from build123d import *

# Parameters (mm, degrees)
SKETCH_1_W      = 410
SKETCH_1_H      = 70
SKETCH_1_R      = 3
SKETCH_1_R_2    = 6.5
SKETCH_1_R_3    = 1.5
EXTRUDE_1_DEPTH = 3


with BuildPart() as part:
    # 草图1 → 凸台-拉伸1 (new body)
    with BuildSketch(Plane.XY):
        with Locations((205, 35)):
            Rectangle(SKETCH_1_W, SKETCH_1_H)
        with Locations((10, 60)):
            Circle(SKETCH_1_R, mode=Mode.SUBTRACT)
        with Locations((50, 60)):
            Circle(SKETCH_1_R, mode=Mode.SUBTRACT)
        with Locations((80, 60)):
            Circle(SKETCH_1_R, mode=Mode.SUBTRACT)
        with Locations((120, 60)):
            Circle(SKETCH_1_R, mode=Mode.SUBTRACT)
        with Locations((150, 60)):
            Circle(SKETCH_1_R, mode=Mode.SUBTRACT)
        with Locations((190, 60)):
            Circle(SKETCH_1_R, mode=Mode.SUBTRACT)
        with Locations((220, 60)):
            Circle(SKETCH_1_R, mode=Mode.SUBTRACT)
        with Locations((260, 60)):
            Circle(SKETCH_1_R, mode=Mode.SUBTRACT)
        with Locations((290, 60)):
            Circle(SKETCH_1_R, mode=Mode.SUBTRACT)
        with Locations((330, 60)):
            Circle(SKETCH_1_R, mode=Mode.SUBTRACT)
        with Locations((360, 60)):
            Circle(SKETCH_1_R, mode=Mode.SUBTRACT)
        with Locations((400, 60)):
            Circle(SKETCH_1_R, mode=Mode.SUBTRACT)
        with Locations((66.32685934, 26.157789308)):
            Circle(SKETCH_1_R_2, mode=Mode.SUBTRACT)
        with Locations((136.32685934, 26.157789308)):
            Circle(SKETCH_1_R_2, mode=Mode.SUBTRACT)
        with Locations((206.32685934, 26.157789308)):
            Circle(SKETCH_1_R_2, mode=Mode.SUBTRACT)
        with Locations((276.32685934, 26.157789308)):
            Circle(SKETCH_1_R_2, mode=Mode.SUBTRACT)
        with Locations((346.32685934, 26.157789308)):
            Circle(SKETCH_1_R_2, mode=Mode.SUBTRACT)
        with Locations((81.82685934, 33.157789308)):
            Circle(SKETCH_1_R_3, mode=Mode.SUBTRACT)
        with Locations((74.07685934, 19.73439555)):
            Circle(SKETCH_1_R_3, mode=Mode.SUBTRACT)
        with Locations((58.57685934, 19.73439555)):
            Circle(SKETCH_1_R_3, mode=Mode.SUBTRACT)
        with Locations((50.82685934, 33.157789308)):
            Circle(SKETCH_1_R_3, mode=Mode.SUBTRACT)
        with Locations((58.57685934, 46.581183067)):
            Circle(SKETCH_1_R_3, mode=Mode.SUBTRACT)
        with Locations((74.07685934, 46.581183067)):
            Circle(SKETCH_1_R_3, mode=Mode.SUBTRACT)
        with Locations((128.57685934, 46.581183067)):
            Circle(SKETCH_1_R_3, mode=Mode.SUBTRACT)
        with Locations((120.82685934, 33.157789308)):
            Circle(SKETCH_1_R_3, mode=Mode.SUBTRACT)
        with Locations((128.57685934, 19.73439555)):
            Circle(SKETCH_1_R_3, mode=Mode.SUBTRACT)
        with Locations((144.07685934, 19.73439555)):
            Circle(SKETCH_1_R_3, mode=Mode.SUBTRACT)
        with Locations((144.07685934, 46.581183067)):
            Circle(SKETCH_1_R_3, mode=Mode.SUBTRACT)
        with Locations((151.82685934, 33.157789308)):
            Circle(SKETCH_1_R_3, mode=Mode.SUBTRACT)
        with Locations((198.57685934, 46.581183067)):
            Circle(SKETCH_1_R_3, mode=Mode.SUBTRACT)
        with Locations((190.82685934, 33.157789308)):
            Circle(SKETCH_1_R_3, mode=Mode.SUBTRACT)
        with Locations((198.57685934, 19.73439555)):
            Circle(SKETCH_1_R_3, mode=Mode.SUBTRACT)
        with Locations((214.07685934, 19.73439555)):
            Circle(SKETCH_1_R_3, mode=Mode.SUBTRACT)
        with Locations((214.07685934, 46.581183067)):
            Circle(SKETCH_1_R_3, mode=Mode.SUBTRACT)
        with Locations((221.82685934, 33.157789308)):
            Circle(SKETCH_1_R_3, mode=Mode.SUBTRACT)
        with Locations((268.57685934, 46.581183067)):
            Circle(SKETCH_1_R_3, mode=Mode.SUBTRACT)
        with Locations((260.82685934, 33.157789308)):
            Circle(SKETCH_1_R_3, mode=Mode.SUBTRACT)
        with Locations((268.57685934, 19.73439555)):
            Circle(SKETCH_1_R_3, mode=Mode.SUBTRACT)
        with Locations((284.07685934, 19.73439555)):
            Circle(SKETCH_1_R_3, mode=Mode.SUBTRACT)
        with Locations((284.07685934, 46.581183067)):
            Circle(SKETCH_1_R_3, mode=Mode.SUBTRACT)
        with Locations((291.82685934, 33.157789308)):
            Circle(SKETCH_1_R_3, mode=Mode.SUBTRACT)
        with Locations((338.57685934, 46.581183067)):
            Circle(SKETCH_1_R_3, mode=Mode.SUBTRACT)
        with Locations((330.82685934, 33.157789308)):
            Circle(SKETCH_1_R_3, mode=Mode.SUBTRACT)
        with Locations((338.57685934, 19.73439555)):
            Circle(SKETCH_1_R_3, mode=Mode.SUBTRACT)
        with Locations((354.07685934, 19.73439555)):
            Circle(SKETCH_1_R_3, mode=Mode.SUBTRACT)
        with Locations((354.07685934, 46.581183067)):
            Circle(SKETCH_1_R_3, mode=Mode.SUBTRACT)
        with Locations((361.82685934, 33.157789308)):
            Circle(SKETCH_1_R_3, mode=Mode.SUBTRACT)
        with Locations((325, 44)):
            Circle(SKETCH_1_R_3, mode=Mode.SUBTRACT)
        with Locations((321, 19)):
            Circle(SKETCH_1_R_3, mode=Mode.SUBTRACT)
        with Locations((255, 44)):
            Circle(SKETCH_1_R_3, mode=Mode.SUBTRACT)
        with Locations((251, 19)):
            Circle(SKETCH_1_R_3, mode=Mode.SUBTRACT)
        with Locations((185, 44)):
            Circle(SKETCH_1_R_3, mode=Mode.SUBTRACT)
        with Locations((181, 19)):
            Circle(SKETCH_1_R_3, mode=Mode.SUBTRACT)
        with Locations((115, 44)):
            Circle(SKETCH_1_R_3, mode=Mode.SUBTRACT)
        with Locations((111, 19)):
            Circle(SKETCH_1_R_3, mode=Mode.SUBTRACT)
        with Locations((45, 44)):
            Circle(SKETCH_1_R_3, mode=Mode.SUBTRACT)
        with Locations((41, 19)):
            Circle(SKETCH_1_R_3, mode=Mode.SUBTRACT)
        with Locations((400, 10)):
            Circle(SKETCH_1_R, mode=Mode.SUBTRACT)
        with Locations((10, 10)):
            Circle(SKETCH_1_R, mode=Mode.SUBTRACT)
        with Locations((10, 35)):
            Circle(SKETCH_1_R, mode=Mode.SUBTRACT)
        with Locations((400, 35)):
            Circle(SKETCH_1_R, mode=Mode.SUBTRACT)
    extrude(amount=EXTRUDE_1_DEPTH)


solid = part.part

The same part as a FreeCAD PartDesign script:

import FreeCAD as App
import Part
import Sketcher

V = App.Vector


def add_polygon(sketch, points):
    """Adds a closed chain of lines whose ends are joined by coincident constraints."""
    first, n = sketch.GeometryCount, len(points)
    for a, b in zip(points, points[1:] + points[:1]):
        sketch.addGeometry(Part.LineSegment(App.Vector(*a, 0), App.Vector(*b, 0)), False)
    for i in range(n):
        sketch.addConstraint(Sketcher.Constraint("Coincident", first + i, 2, first + (i + 1) % n, 1))

doc = App.newDocument("Part")
body = doc.addObject("PartDesign::Body", "Body")

sketch1 = body.newObject("Sketcher::SketchObject", "Sketch")
sketch1.AttachmentSupport = (doc.getObject("XY_Plane"), [""])
sketch1.MapMode = "FlatFace"
add_polygon(sketch1, [(0, 70), (0, 0), (410, 0), (410, 70)])
sketch1.addGeometry(Part.Circle(V(10, 10, 0), V(0, 0, 1), 3), False)
sketch1.addGeometry(Part.Circle(V(41, 19, 0), V(0, 0, 1), 1.5), False)
sketch1.addGeometry(Part.Circle(V(58.6, 19.7, 0), V(0, 0, 1), 1.5), False)
sketch1.addGeometry(Part.Circle(V(74.1, 19.7, 0), V(0, 0, 1), 1.5), False)
sketch1.addGeometry(Part.Circle(V(111, 19, 0), V(0, 0, 1), 1.5), False)
sketch1.addGeometry(Part.Circle(V(128.6, 19.7, 0), V(0, 0, 1), 1.5), False)
sketch1.addGeometry(Part.Circle(V(144.1, 19.7, 0), V(0, 0, 1), 1.5), False)
sketch1.addGeometry(Part.Circle(V(181, 19, 0), V(0, 0, 1), 1.5), False)
sketch1.addGeometry(Part.Circle(V(198.6, 19.7, 0), V(0, 0, 1), 1.5), False)
sketch1.addGeometry(Part.Circle(V(66.3, 26.2, 0), V(0, 0, 1), 6.5), False)
sketch1.addGeometry(Part.Circle(V(50.8, 33.2, 0), V(0, 0, 1), 1.5), False)
sketch1.addGeometry(Part.Circle(V(81.8, 33.2, 0), V(0, 0, 1), 1.5), False)
sketch1.addGeometry(Part.Circle(V(136.3, 26.2, 0), V(0, 0, 1), 6.5), False)
sketch1.addGeometry(Part.Circle(V(120.8, 33.2, 0), V(0, 0, 1), 1.5), False)
sketch1.addGeometry(Part.Circle(V(151.8, 33.2, 0), V(0, 0, 1), 1.5), False)
sketch1.addGeometry(Part.Circle(V(190.8, 33.2, 0), V(0, 0, 1), 1.5), False)
sketch1.addGeometry(Part.Circle(V(214.1, 19.7, 0), V(0, 0, 1), 1.5), False)
sketch1.addGeometry(Part.Circle(V(251, 19, 0), V(0, 0, 1), 1.5), False)
sketch1.addGeometry(Part.Circle(V(268.6, 19.7, 0), V(0, 0, 1), 1.5), False)
sketch1.addGeometry(Part.Circle(V(284.1, 19.7, 0), V(0, 0, 1), 1.5), False)
sketch1.addGeometry(Part.Circle(V(400, 10, 0), V(0, 0, 1), 3), False)
sketch1.addGeometry(Part.Circle(V(321, 19, 0), V(0, 0, 1), 1.5), False)
sketch1.addGeometry(Part.Circle(V(338.6, 19.7, 0), V(0, 0, 1), 1.5), False)
sketch1.addGeometry(Part.Circle(V(354.1, 19.7, 0), V(0, 0, 1), 1.5), False)
sketch1.addGeometry(Part.Circle(V(206.3, 26.2, 0), V(0, 0, 1), 6.5), False)
sketch1.addGeometry(Part.Circle(V(276.3, 26.2, 0), V(0, 0, 1), 6.5), False)
sketch1.addGeometry(Part.Circle(V(221.8, 33.2, 0), V(0, 0, 1), 1.5), False)
sketch1.addGeometry(Part.Circle(V(260.8, 33.2, 0), V(0, 0, 1), 1.5), False)
sketch1.addGeometry(Part.Circle(V(291.8, 33.2, 0), V(0, 0, 1), 1.5), False)
sketch1.addGeometry(Part.Circle(V(346.3, 26.2, 0), V(0, 0, 1), 6.5), False)
sketch1.addGeometry(Part.Circle(V(330.8, 33.2, 0), V(0, 0, 1), 1.5), False)
sketch1.addGeometry(Part.Circle(V(361.8, 33.2, 0), V(0, 0, 1), 1.5), False)
sketch1.addGeometry(Part.Circle(V(10, 35, 0), V(0, 0, 1), 3), False)
sketch1.addGeometry(Part.Circle(V(45, 44, 0), V(0, 0, 1), 1.5), False)
sketch1.addGeometry(Part.Circle(V(58.6, 46.6, 0), V(0, 0, 1), 1.5), False)
sketch1.addGeometry(Part.Circle(V(74.1, 46.6, 0), V(0, 0, 1), 1.5), False)
sketch1.addGeometry(Part.Circle(V(115, 44, 0), V(0, 0, 1), 1.5), False)
sketch1.addGeometry(Part.Circle(V(128.6, 46.6, 0), V(0, 0, 1), 1.5), False)
sketch1.addGeometry(Part.Circle(V(144.1, 46.6, 0), V(0, 0, 1), 1.5), False)
sketch1.addGeometry(Part.Circle(V(185, 44, 0), V(0, 0, 1), 1.5), False)
sketch1.addGeometry(Part.Circle(V(198.6, 46.6, 0), V(0, 0, 1), 1.5), False)
sketch1.addGeometry(Part.Circle(V(10, 60, 0), V(0, 0, 1), 3), False)
sketch1.addGeometry(Part.Circle(V(50, 60, 0), V(0, 0, 1), 3), False)
sketch1.addGeometry(Part.Circle(V(80, 60, 0), V(0, 0, 1), 3), False)
sketch1.addGeometry(Part.Circle(V(120, 60, 0), V(0, 0, 1), 3), False)
sketch1.addGeometry(Part.Circle(V(150, 60, 0), V(0, 0, 1), 3), False)
sketch1.addGeometry(Part.Circle(V(190, 60, 0), V(0, 0, 1), 3), False)
sketch1.addGeometry(Part.Circle(V(214.1, 46.6, 0), V(0, 0, 1), 1.5), False)
sketch1.addGeometry(Part.Circle(V(255, 44, 0), V(0, 0, 1), 1.5), False)
sketch1.addGeometry(Part.Circle(V(268.6, 46.6, 0), V(0, 0, 1), 1.5), False)
sketch1.addGeometry(Part.Circle(V(284.1, 46.6, 0), V(0, 0, 1), 1.5), False)
sketch1.addGeometry(Part.Circle(V(400, 35, 0), V(0, 0, 1), 3), False)
sketch1.addGeometry(Part.Circle(V(325, 44, 0), V(0, 0, 1), 1.5), False)
sketch1.addGeometry(Part.Circle(V(338.6, 46.6, 0), V(0, 0, 1), 1.5), False)
sketch1.addGeometry(Part.Circle(V(354.1, 46.6, 0), V(0, 0, 1), 1.5), False)
sketch1.addGeometry(Part.Circle(V(220, 60, 0), V(0, 0, 1), 3), False)
sketch1.addGeometry(Part.Circle(V(260, 60, 0), V(0, 0, 1), 3), False)
sketch1.addGeometry(Part.Circle(V(290, 60, 0), V(0, 0, 1), 3), False)
sketch1.addGeometry(Part.Circle(V(330, 60, 0), V(0, 0, 1), 3), False)
sketch1.addGeometry(Part.Circle(V(360, 60, 0), V(0, 0, 1), 3), False)
sketch1.addGeometry(Part.Circle(V(400, 60, 0), V(0, 0, 1), 3), False)
sketch1.addConstraint([
    Sketcher.Constraint("Vertical", 0),
    Sketcher.Constraint("Horizontal", 1),
    Sketcher.Constraint("Vertical", 2),
    Sketcher.Constraint("Horizontal", 3),
    Sketcher.Constraint("Coincident", 0, 2, -1, 1),
    Sketcher.Constraint("Equal", 5, 6),
    Sketcher.Constraint("Equal", 6, 7),
    Sketcher.Constraint("Equal", 7, 8),
    Sketcher.Constraint("Equal", 8, 9),
    Sketcher.Constraint("Equal", 9, 10),
    Sketcher.Constraint("Equal", 10, 11),
    Sketcher.Constraint("Equal", 11, 12),
    Sketcher.Constraint("Equal", 12, 14),
    Sketcher.Constraint("Equal", 14, 15),
    Sketcher.Constraint("Equal", 13, 16),
    Sketcher.Constraint("Equal", 15, 17),
    Sketcher.Constraint("Equal", 17, 18),
    Sketcher.Constraint("Equal", 18, 19),
    Sketcher.Constraint("Equal", 19, 20),
    Sketcher.Constraint("Equal", 20, 21),
    Sketcher.Constraint("Equal", 21, 22),
    Sketcher.Constraint("Equal", 22, 23),
    Sketcher.Constraint("Equal", 4, 24),
    Sketcher.Constraint("Equal", 23, 25),
    Sketcher.Constraint("Equal", 25, 26),
    Sketcher.Constraint("Equal", 26, 27),
    Sketcher.Constraint("Equal", 16, 28),
    Sketcher.Constraint("Equal", 28, 29),
    Sketcher.Constraint("Equal", 27, 30),
    Sketcher.Constraint("Equal", 30, 31),
    Sketcher.Constraint("Equal", 31, 32),
    Sketcher.Constraint("Equal", 29, 33),
    Sketcher.Constraint("Equal", 32, 34),
    Sketcher.Constraint("Equal", 34, 35),
    Sketcher.Constraint("Equal", 24, 36),
    Sketcher.Constraint("Equal", 35, 37),
    Sketcher.Constraint("Equal", 37, 38),
    Sketcher.Constraint("Equal", 38, 39),
    Sketcher.Constraint("Equal", 39, 40),
    Sketcher.Constraint("Equal", 40, 41),
    Sketcher.Constraint("Equal", 41, 42),
    Sketcher.Constraint("Equal", 42, 43),
    Sketcher.Constraint("Equal", 43, 44),
    Sketcher.Constraint("Equal", 36, 45),
    Sketcher.Constraint("Equal", 45, 46),
    Sketcher.Constraint("Equal", 46, 47),
    Sketcher.Constraint("Equal", 47, 48),
    Sketcher.Constraint("Equal", 48, 49),
    Sketcher.Constraint("Equal", 49, 50),
    Sketcher.Constraint("Equal", 44, 51),
    Sketcher.Constraint("Equal", 51, 52),
    Sketcher.Constraint("Equal", 52, 53),
    Sketcher.Constraint("Equal", 53, 54),
    Sketcher.Constraint("Equal", 50, 55),
    Sketcher.Constraint("Equal", 54, 56),
    Sketcher.Constraint("Equal", 56, 57),
    Sketcher.Constraint("Equal", 57, 58),
    Sketcher.Constraint("Equal", 55, 59),
    Sketcher.Constraint("Equal", 59, 60),
    Sketcher.Constraint("Equal", 60, 61),
    Sketcher.Constraint("Equal", 61, 62),
    Sketcher.Constraint("Equal", 62, 63),
    Sketcher.Constraint("Equal", 63, 64),
    Sketcher.Constraint("Horizontal", 6, 3, 7, 3),
    Sketcher.Constraint("Horizontal", 5, 3, 8, 3),
    Sketcher.Constraint("Horizontal", 7, 3, 9, 3),
    Sketcher.Constraint("Horizontal", 9, 3, 10, 3),
    Sketcher.Constraint("Horizontal", 8, 3, 11, 3),
    Sketcher.Constraint("Horizontal", 10, 3, 12, 3),
    Sketcher.Constraint("Horizontal", 14, 3, 15, 3),
    Sketcher.Constraint("Horizontal", 13, 3, 16, 3),
    Sketcher.Constraint("Horizontal", 15, 3, 17, 3),
    Sketcher.Constraint("Horizontal", 17, 3, 18, 3),
    Sketcher.Constraint("Horizontal", 18, 3, 19, 3),
    Sketcher.Constraint("Horizontal", 12, 3, 20, 3),
    Sketcher.Constraint("Horizontal", 11, 3, 21, 3),
    Sketcher.Constraint("Horizontal", 20, 3, 22, 3),
    Sketcher.Constraint("Horizontal", 22, 3, 23, 3),
    Sketcher.Constraint("Horizontal", 4, 3, 24, 3),
    Sketcher.Constraint("Horizontal", 21, 3, 25, 3),
    Sketcher.Constraint("Horizontal", 23, 3, 26, 3),
    Sketcher.Constraint("Horizontal", 26, 3, 27, 3),
    Sketcher.Constraint("Horizontal", 16, 3, 28, 3),
    Sketcher.Constraint("Horizontal", 28, 3, 29, 3),
    Sketcher.Constraint("Horizontal", 19, 3, 30, 3),
    Sketcher.Constraint("Horizontal", 30, 3, 31, 3),
    Sketcher.Constraint("Horizontal", 31, 3, 32, 3),
    Sketcher.Constraint("Horizontal", 29, 3, 33, 3),
    Sketcher.Constraint("Horizontal", 32, 3, 34, 3),
    Sketcher.Constraint("Horizontal", 34, 3, 35, 3),
    Sketcher.Constraint("Horizontal", 38, 3, 39, 3),
    Sketcher.Constraint("Horizontal", 37, 3, 40, 3),
    Sketcher.Constraint("Horizontal", 39, 3, 41, 3),
    Sketcher.Constraint("Horizontal", 41, 3, 42, 3),
    Sketcher.Constraint("Horizontal", 40, 3, 43, 3),
    Sketcher.Constraint("Horizontal", 42, 3, 44, 3),
    Sketcher.Constraint("Horizontal", 45, 3, 46, 3),
    Sketcher.Constraint("Horizontal", 46, 3, 47, 3),
    Sketcher.Constraint("Horizontal", 47, 3, 48, 3),
    Sketcher.Constraint("Horizontal", 48, 3, 49, 3),
    Sketcher.Constraint("Horizontal", 49, 3, 50, 3),
    Sketcher.Constraint("Horizontal", 44, 3, 51, 3),
    Sketcher.Constraint("Horizontal", 43, 3, 52, 3),
    Sketcher.Constraint("Horizontal", 51, 3, 53, 3),
    Sketcher.Constraint("Horizontal", 53, 3, 54, 3),
    Sketcher.Constraint("Horizontal", 36, 3, 55, 3),
    Sketcher.Constraint("Horizontal", 52, 3, 56, 3),
    Sketcher.Constraint("Horizontal", 54, 3, 57, 3),
    Sketcher.Constraint("Horizontal", 57, 3, 58, 3),
    Sketcher.Constraint("Horizontal", 50, 3, 59, 3),
    Sketcher.Constraint("Horizontal", 59, 3, 60, 3),
    Sketcher.Constraint("Horizontal", 60, 3, 61, 3),
    Sketcher.Constraint("Horizontal", 61, 3, 62, 3),
    Sketcher.Constraint("Horizontal", 62, 3, 63, 3),
    Sketcher.Constraint("Horizontal", 63, 3, 64, 3),
    Sketcher.Constraint("Vertical", 4, 3, 36, 3),
    Sketcher.Constraint("Vertical", 6, 3, 38, 3),
    Sketcher.Constraint("Vertical", 7, 3, 39, 3),
    Sketcher.Constraint("Vertical", 9, 3, 41, 3),
    Sketcher.Constraint("Vertical", 10, 3, 42, 3),
    Sketcher.Constraint("Vertical", 12, 3, 44, 3),
    Sketcher.Constraint("Vertical", 36, 3, 45, 3),
    Sketcher.Constraint("Vertical", 20, 3, 51, 3),
    Sketcher.Constraint("Vertical", 22, 3, 53, 3),
    Sketcher.Constraint("Vertical", 23, 3, 54, 3),
    Sketcher.Constraint("Vertical", 24, 3, 55, 3),
    Sketcher.Constraint("Vertical", 26, 3, 57, 3),
    Sketcher.Constraint("Vertical", 27, 3, 58, 3),
    Sketcher.Constraint("Vertical", 55, 3, 64, 3),
    Sketcher.Constraint("Diameter", 4, 6.0),
    Sketcher.Constraint("Diameter", 5, 3.0),
    Sketcher.Constraint("Diameter", 13, 13.0),
    Sketcher.Constraint("DistanceX", 1, 1, 1, 2, 410.0),
    Sketcher.Constraint("DistanceY", 0, 2, 0, 1, 70.0),
    Sketcher.Constraint("DistanceX", -1, 1, 4, 3, 10.0),
    Sketcher.Constraint("DistanceY", -1, 1, 4, 3, 10.0),
    Sketcher.Constraint("DistanceX", -1, 1, 5, 3, 41.0),
    Sketcher.Constraint("DistanceY", -1, 1, 5, 3, 19.0),
    Sketcher.Constraint("DistanceX", -1, 1, 8, 3, 111.0),
    Sketcher.Constraint("DistanceX", -1, 1, 11, 3, 181.0),
    Sketcher.Constraint("DistanceX", -1, 1, 21, 3, 251.0),
    Sketcher.Constraint("DistanceX", -1, 1, 24, 3, 400.0),
    Sketcher.Constraint("DistanceX", -1, 1, 25, 3, 321.0),
    Sketcher.Constraint("DistanceY", -1, 1, 36, 3, 35.0),
    Sketcher.Constraint("DistanceX", -1, 1, 37, 3, 45.0),
    Sketcher.Constraint("DistanceY", -1, 1, 37, 3, 44.0),
    Sketcher.Constraint("DistanceX", -1, 1, 40, 3, 115.0),
    Sketcher.Constraint("DistanceX", -1, 1, 43, 3, 185.0),
    Sketcher.Constraint("DistanceY", -1, 1, 45, 3, 60.0),
    Sketcher.Constraint("DistanceX", -1, 1, 46, 3, 50.0),
    Sketcher.Constraint("DistanceX", -1, 1, 47, 3, 80.0),
    Sketcher.Constraint("DistanceX", -1, 1, 48, 3, 120.0),
    Sketcher.Constraint("DistanceX", -1, 1, 49, 3, 150.0),
    Sketcher.Constraint("DistanceX", -1, 1, 50, 3, 190.0),
    Sketcher.Constraint("DistanceX", -1, 1, 52, 3, 255.0),
    Sketcher.Constraint("DistanceX", -1, 1, 56, 3, 325.0),
    Sketcher.Constraint("DistanceX", -1, 1, 59, 3, 220.0),
    Sketcher.Constraint("DistanceX", -1, 1, 60, 3, 260.0),
    Sketcher.Constraint("DistanceX", -1, 1, 61, 3, 290.0),
    Sketcher.Constraint("DistanceX", -1, 1, 62, 3, 330.0),
    Sketcher.Constraint("DistanceX", -1, 1, 63, 3, 360.0),
    Sketcher.Constraint("DistanceX", -1, 1, 6, 3, 58.576859),
    Sketcher.Constraint("DistanceX", -1, 1, 7, 3, 74.076859),
    Sketcher.Constraint("DistanceX", -1, 1, 9, 3, 128.576859),
    Sketcher.Constraint("DistanceX", -1, 1, 10, 3, 144.076859),
    Sketcher.Constraint("DistanceX", -1, 1, 12, 3, 198.576859),
    Sketcher.Constraint("DistanceX", -1, 1, 13, 3, 66.326859),
    Sketcher.Constraint("DistanceY", -1, 1, 13, 3, 26.157789),
    Sketcher.Constraint("DistanceX", -1, 1, 14, 3, 50.826859),
    Sketcher.Constraint("DistanceY", -1, 1, 14, 3, 33.157789),
    Sketcher.Constraint("DistanceX", -1, 1, 15, 3, 81.826859),
    Sketcher.Constraint("DistanceX", -1, 1, 16, 3, 136.326859),
    Sketcher.Constraint("DistanceX", -1, 1, 17, 3, 120.826859),
    Sketcher.Constraint("DistanceX", -1, 1, 18, 3, 151.826859),
    Sketcher.Constraint("DistanceX", -1, 1, 19, 3, 190.826859),
    Sketcher.Constraint("DistanceX", -1, 1, 20, 3, 214.076859),
    Sketcher.Constraint("DistanceX", -1, 1, 22, 3, 268.576859),
    Sketcher.Constraint("DistanceX", -1, 1, 23, 3, 284.076859),
    Sketcher.Constraint("DistanceX", -1, 1, 26, 3, 338.576859),
    Sketcher.Constraint("DistanceX", -1, 1, 27, 3, 354.076859),
    Sketcher.Constraint("DistanceX", -1, 1, 28, 3, 206.326859),
    Sketcher.Constraint("DistanceX", -1, 1, 29, 3, 276.326859),
    Sketcher.Constraint("DistanceX", -1, 1, 30, 3, 221.826859),
    Sketcher.Constraint("DistanceX", -1, 1, 31, 3, 260.826859),
    Sketcher.Constraint("DistanceX", -1, 1, 32, 3, 291.826859),
    Sketcher.Constraint("DistanceX", -1, 1, 33, 3, 346.326859),
    Sketcher.Constraint("DistanceX", -1, 1, 34, 3, 330.826859),
    Sketcher.Constraint("DistanceX", -1, 1, 35, 3, 361.826859),
    Sketcher.Constraint("DistanceY", -1, 1, 6, 3, 19.734396),
    Sketcher.Constraint("DistanceY", -1, 1, 38, 3, 46.581183),
])
pad1 = body.newObject("PartDesign::Pad", "Pad")
pad1.Profile = sketch1
pad1.Length = 3

doc.recompute()
